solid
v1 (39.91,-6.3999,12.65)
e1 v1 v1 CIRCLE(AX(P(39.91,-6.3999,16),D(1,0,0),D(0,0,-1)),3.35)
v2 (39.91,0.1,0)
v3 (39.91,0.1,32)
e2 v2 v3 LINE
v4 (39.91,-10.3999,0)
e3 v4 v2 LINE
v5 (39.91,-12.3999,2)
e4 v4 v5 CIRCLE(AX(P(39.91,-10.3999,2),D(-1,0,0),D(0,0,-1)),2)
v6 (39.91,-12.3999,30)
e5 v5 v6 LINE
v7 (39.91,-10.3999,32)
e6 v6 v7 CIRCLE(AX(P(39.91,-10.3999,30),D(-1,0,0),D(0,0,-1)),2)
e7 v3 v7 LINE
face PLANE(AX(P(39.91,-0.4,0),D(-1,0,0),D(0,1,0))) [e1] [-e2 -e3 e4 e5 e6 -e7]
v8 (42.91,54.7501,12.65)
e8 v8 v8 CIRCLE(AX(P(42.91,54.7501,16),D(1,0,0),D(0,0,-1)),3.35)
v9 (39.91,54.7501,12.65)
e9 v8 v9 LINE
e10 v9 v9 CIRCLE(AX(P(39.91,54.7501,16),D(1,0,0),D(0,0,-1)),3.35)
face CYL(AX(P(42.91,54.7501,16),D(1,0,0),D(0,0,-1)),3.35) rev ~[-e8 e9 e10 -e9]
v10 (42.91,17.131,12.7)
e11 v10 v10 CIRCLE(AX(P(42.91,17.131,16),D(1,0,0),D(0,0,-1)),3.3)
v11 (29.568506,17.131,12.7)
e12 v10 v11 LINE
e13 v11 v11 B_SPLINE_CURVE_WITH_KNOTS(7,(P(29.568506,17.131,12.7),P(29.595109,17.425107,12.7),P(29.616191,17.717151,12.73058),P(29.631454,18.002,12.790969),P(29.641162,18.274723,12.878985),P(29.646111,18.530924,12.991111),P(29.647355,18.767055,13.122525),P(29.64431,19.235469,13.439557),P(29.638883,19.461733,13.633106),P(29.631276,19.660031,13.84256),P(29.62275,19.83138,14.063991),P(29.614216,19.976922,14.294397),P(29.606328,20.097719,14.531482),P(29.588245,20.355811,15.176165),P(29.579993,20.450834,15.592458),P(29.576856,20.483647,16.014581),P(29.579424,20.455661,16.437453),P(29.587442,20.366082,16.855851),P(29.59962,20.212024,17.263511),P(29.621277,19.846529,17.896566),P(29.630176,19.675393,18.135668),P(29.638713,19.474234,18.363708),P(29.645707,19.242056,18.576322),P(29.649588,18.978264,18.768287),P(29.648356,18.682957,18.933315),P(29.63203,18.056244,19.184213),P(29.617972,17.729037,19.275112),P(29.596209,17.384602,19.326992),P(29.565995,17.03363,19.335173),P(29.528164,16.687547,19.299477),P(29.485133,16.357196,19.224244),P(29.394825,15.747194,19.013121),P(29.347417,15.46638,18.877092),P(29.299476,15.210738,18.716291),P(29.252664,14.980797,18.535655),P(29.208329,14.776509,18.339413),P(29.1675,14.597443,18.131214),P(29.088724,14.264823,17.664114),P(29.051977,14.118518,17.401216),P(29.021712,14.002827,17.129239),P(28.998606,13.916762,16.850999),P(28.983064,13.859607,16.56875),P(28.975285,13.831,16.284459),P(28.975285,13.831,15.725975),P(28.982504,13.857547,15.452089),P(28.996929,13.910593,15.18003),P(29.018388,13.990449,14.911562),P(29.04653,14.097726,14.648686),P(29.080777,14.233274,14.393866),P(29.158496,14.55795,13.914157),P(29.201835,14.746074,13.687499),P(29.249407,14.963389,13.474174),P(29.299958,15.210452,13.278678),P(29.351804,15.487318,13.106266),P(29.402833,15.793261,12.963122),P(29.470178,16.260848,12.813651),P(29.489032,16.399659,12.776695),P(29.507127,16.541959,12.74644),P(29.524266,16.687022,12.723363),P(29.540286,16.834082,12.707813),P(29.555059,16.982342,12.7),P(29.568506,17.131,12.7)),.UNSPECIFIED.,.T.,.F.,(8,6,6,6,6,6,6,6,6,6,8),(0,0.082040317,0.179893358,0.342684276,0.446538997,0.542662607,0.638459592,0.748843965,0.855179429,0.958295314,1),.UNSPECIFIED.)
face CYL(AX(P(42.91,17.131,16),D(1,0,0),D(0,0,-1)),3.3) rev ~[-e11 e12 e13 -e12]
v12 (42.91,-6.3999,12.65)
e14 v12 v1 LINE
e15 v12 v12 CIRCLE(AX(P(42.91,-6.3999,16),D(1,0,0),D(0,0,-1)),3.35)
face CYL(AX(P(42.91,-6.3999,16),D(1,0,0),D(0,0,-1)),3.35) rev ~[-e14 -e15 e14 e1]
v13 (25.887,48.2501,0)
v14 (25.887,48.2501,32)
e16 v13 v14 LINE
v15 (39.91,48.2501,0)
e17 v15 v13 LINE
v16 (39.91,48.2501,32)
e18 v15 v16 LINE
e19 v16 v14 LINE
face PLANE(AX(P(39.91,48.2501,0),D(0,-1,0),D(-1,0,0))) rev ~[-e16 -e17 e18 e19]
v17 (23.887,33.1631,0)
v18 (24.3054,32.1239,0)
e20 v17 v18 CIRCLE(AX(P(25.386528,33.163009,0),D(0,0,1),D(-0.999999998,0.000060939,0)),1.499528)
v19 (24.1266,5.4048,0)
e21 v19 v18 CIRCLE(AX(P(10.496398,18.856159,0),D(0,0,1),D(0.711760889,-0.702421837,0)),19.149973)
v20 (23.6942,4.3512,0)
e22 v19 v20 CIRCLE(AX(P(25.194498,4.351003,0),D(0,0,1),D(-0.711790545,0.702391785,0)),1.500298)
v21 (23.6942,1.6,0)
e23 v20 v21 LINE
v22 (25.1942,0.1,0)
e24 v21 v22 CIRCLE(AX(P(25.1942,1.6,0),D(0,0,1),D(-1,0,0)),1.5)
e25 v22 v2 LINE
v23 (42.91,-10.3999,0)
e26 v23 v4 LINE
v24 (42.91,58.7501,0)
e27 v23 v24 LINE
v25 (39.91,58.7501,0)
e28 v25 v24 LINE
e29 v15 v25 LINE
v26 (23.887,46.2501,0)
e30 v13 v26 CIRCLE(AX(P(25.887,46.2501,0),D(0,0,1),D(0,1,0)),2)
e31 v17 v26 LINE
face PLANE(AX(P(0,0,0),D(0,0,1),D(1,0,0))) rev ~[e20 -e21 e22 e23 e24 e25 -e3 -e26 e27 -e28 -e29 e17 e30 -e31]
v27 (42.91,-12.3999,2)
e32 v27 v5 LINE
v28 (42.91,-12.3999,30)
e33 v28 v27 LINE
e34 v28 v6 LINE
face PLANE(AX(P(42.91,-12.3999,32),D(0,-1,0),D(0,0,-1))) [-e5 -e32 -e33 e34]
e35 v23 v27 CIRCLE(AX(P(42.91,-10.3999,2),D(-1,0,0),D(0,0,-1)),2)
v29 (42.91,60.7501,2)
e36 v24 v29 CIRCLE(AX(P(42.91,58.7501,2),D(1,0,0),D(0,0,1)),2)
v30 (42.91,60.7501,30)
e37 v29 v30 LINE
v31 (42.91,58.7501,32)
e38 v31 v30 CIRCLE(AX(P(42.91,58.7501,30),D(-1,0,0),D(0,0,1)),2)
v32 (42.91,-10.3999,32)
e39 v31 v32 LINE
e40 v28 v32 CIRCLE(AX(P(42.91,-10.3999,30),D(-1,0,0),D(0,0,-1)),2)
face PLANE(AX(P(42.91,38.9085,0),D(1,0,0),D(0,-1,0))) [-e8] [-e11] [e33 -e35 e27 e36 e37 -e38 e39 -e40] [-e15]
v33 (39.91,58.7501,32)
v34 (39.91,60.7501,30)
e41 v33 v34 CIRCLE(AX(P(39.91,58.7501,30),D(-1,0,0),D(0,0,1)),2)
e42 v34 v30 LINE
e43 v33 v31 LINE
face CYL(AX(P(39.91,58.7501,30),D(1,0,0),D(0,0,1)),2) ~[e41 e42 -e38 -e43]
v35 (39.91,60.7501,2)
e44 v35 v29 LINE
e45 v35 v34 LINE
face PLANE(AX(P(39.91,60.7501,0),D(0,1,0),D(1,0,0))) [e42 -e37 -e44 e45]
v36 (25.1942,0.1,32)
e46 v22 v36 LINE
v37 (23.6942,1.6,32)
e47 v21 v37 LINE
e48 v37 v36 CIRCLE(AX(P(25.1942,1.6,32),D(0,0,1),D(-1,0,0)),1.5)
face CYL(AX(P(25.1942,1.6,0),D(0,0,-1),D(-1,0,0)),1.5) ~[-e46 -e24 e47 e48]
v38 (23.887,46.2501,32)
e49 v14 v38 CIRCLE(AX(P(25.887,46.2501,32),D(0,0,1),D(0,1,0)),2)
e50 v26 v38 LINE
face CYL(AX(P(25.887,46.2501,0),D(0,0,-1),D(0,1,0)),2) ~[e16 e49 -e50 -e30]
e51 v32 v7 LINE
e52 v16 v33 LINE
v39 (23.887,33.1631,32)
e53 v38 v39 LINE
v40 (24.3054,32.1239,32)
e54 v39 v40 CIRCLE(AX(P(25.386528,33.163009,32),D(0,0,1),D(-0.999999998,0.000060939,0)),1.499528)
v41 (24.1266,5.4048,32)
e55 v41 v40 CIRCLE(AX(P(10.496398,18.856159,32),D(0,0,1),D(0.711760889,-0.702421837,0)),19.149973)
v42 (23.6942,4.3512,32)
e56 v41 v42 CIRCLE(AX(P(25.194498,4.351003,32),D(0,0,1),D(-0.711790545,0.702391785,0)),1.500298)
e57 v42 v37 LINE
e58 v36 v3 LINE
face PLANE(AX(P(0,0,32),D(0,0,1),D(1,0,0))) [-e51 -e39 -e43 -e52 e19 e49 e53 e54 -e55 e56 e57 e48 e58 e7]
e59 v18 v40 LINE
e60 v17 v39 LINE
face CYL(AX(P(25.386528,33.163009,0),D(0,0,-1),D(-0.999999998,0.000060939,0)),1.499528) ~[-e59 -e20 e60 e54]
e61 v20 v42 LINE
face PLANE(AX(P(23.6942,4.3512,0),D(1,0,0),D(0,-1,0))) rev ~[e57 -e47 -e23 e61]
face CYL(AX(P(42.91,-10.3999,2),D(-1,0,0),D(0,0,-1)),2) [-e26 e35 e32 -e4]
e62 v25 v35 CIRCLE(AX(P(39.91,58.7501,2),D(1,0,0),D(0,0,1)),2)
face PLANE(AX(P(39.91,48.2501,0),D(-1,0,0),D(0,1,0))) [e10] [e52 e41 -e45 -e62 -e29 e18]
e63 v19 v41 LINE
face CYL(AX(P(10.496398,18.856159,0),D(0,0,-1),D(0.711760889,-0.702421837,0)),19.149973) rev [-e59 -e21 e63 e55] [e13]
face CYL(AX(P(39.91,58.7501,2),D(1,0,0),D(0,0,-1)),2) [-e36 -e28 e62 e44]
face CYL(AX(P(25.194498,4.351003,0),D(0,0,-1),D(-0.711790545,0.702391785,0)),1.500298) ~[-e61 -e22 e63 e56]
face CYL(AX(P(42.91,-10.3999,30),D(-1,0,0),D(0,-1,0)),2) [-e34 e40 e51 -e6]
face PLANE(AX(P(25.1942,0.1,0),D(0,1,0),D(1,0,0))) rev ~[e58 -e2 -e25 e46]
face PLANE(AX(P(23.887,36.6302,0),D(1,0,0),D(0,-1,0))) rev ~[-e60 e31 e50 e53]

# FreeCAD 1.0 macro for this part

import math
import FreeCAD as App
import Part
import Sketcher
from FreeCAD import Vector
Q = App.Units.Quantity


def edges_at(feature, points):
    """Names of the edges that pass closest to the given points."""
    edges = feature.Shape.Edges
    near = lambda p: min(range(len(edges)), key=lambda i: edges[i].distToShape(Part.Vertex(*p))[0])
    return sorted({f"Edge{near(p) + 1}" for p in points})

doc = App.newDocument("Part")
params = doc.addObject("Spreadsheet::Sheet", "Params")
for row, (alias, value) in enumerate([
    ("sketch1_radius", "2 mm"),
    ("sketch1_radius2", "1.5 mm"),
    ("sketch1_width", "3 mm"),
    ("sketch1_height", "84 mm"),
    ("sketch1_radius3", "19.15 mm"),
    ("pad1_length", "32 mm"),
    ("sketch2_diameter", "6.7 mm"),
    ("sketch2_diameter2", "6.6 mm"),
    ("sketch2_height", "32 mm"),
    ("sketch2_width", "10.85 mm"),
    ("pocket1_length", "32 mm"),
    ("fillet_radius", "2 mm"),
], start=1):
    params.set(f"A{row}", alias)
    params.set(f"B{row}", "=" + value)
    params.setAlias(f"B{row}", alias)

body = doc.addObject("PartDesign::Body", "Body")

# Sketch on XY plane
sketch1 = body.newObject("Sketcher::SketchObject", "Sketch")
sketch1.AttachmentSupport = (doc.getObject("XY_Plane"), [""])
sketch1.MapMode = "FlatFace"
sketch1.addGeometry([
    Part.LineSegment(Vector(42.9, 60.8, 0), Vector(39.9, 60.8, 0)),  # 0
    Part.LineSegment(Vector(39.9, 60.8, 0), Vector(39.9, 48.3, 0)),  # 1
    Part.LineSegment(Vector(39.9, 48.3, 0), Vector(25.9, 48.3, 0)),  # 2
    Part.ArcOfCircle(Part.Circle(Vector(25.9, 46.3, 0), Vector(0, 0, 1), 2), math.radians(90), math.radians(180)),  # 3
    Part.LineSegment(Vector(23.9, 46.3, 0), Vector(23.9, 33.2, 0)),  # 4
    Part.ArcOfCircle(Part.Circle(Vector(25.4, 33.2, 0), Vector(0, 0, 1), 1.5), math.radians(180), math.radians(224)),  # 5
    Part.ArcOfCircle(Part.Circle(Vector(10.5, 18.9, 0), Vector(0, 0, 1), 19.2), math.radians(-45), math.radians(44)),  # 6
    Part.ArcOfCircle(Part.Circle(Vector(25.2, 4.4, 0), Vector(0, 0, 1), 1.5), math.radians(135), math.radians(180)),  # 7
    Part.LineSegment(Vector(23.7, 4.4, 0), Vector(23.7, 1.6, 0)),  # 8
    Part.ArcOfCircle(Part.Circle(Vector(25.2, 1.6, 0), Vector(0, 0, 1), 1.5), math.radians(180), math.radians(270)),  # 9
    Part.LineSegment(Vector(25.2, 0.1, 0), Vector(39.9, 0.1, 0)),  # 10
    Part.LineSegment(Vector(39.9, 0.1, 0), Vector(39.9, -23.2, 0)),  # 11
    Part.LineSegment(Vector(39.9, -23.2, 0), Vector(42.9, -23.2, 0)),  # 12
    Part.LineSegment(Vector(42.9, -23.2, 0), Vector(42.9, 60.8, 0)),  # 13
], False)
sketch1.addConstraint([
    Sketcher.Constraint("Coincident", 0, 2, 1, 1),
    Sketcher.Constraint("Coincident", 1, 2, 2, 1),
    Sketcher.Constraint("Tangent", 2, 2, 3, 1),
    Sketcher.Constraint("Tangent", 3, 2, 4, 1),
    Sketcher.Constraint("Tangent", 4, 2, 5, 1),
    Sketcher.Constraint("Tangent", 5, 2, 6, 2),
    Sketcher.Constraint("Tangent", 6, 1, 7, 1),
    Sketcher.Constraint("Tangent", 7, 2, 8, 1),
    Sketcher.Constraint("Tangent", 8, 2, 9, 1),
    Sketcher.Constraint("Tangent", 9, 2, 10, 1),
    Sketcher.Constraint("Coincident", 10, 2, 11, 1),
    Sketcher.Constraint("Coincident", 11, 2, 12, 1),
    Sketcher.Constraint("Coincident", 12, 2, 13, 1),
    Sketcher.Constraint("Coincident", 13, 2, 0, 1),
    Sketcher.Constraint("Horizontal", 0),
    Sketcher.Constraint("Vertical", 1),
    Sketcher.Constraint("Horizontal", 2),
    Sketcher.Constraint("Vertical", 4),
    Sketcher.Constraint("Vertical", 8),
    Sketcher.Constraint("Horizontal", 10),
    Sketcher.Constraint("Vertical", 11),
    Sketcher.Constraint("Horizontal", 12),
    Sketcher.Constraint("Vertical", 13),
    Sketcher.Constraint("Equal", 5, 7),
    Sketcher.Constraint("Equal", 7, 9),
    Sketcher.Constraint("Vertical", 1, 2, 10, 2),
    Sketcher.Constraint("Radius", 3, Q("2 mm")),
    Sketcher.Constraint("Radius", 5, Q("1.5 mm")),
    Sketcher.Constraint("DistanceX", 0, 2, 0, 1, Q("3 mm")),
    Sketcher.Constraint("DistanceY", 13, 1, 13, 2, Q("84 mm")),
    Sketcher.Constraint("Radius", 6, Q("19.15 mm")),
    Sketcher.Constraint("DistanceY", 1, 2, 1, 1, Q("12.5 mm")),
    Sketcher.Constraint("DistanceY", 11, 2, 11, 1, Q("23.35 mm")),
    Sketcher.Constraint("DistanceY", -1, 1, 9, 3, Q("1.6 mm")),
    Sketcher.Constraint("DistanceX", 2, 2, 2, 1, Q("14.023 mm")),
    Sketcher.Constraint("DistanceY", 4, 2, 4, 1, Q("13.087 mm")),
    Sketcher.Constraint("DistanceX", -1, 1, 0, 2, Q("39.91 mm")),
    Sketcher.Constraint("DistanceX", 10, 1, 10, 2, Q("14.7158 mm")),
    Sketcher.Constraint("DistanceY", 8, 2, 8, 1, Q("2.7512 mm")),
])
sketch1.setExpression("Constraints[26]", "Params.sketch1_radius")
sketch1.setExpression("Constraints[27]", "Params.sketch1_radius2")
sketch1.setExpression("Constraints[28]", "Params.sketch1_width")
sketch1.setExpression("Constraints[29]", "Params.sketch1_height")
sketch1.setExpression("Constraints[30]", "Params.sketch1_radius3")
pad1 = body.newObject("PartDesign::Pad", "Pad")
pad1.Profile = sketch1
pad1.setExpression("Length", "Params.pad1_length")

# Sketch on YZ plane
sketch2 = body.newObject("Sketcher::SketchObject", "Sketch001")
sketch2.AttachmentSupport = (doc.getObject("YZ_Plane"), [""])
sketch2.MapMode = "FlatFace"
sketch2.AttachmentOffset = App.Placement(Vector(0, 0, 42.91), App.Rotation())
sketch2.addGeometry([
    Part.Circle(Vector(54.8, 16, 0), Vector(0, 0, 1), 3.4),  # 0
    Part.Circle(Vector(-6.4, 16, 0), Vector(0, 0, 1), 3.4),  # 1
    Part.LineSegment(Vector(-23.2, 32, 0), Vector(-23.2, 0, 0)),  # 2
    Part.LineSegment(Vector(-23.2, 0, 0), Vector(-12.4, 0, 0)),  # 3
    Part.LineSegment(Vector(-12.4, 0, 0), Vector(-12.4, 32, 0)),  # 4
    Part.LineSegment(Vector(-12.4, 32, 0), Vector(-23.2, 32, 0)),  # 5
    Part.Circle(Vector(17.1, 16, 0), Vector(0, 0, 1), 3.3),  # 6
], False)
sketch2.addConstraint([
    Sketcher.Constraint("Coincident", 2, 2, 3, 1),
    Sketcher.Constraint("Coincident", 3, 2, 4, 1),
    Sketcher.Constraint("Coincident", 4, 2, 5, 1),
    Sketcher.Constraint("Coincident", 5, 2, 2, 1),
    Sketcher.Constraint("Vertical", 2),
    Sketcher.Constraint("Horizontal", 3),
    Sketcher.Constraint("Vertical", 4),
    Sketcher.Constraint("Horizontal", 5),
    Sketcher.Constraint("Equal", 0, 1),
    Sketcher.Constraint("PointOnObject", 2, 2, -1),
    Sketcher.Constraint("Horizontal", 0, 3, 1, 3),
    Sketcher.Constraint("Horizontal", 1, 3, 6, 3),
    Sketcher.Constraint("Diameter", 0, Q("6.7 mm")),
    Sketcher.Constraint("Diameter", 6, Q("6.6 mm")),
    Sketcher.Constraint("DistanceY", 2, 2, 2, 1, Q("32 mm")),
    Sketcher.Constraint("DistanceX", 3, 2, 1, 3, Q("6 mm")),
    Sketcher.Constraint("DistanceY", -1, 1, 0, 3, Q("16 mm")),
    Sketcher.Constraint("DistanceX", 2, 2, 0, 3, Q("78 mm")),
    Sketcher.Constraint("DistanceX", 3, 1, 3, 2, Q("10.85 mm")),
    Sketcher.Constraint("DistanceX", 1, 3, -1, 1, Q("6.4 mm")),
    Sketcher.Constraint("DistanceX", -1, 1, 6, 3, Q("17.131 mm")),
])
sketch2.setExpression("Constraints[12]", "Params.sketch2_diameter")
sketch2.setExpression("Constraints[13]", "Params.sketch2_diameter2")
sketch2.setExpression("Constraints[14]", "Params.sketch2_height")
sketch2.setExpression("Constraints[18]", "Params.sketch2_width")
pocket1 = body.newObject("PartDesign::Pocket", "Pocket")
pocket1.Profile = sketch2
pocket1.setExpression("Length", "Params.pocket1_length")
doc.recompute()

fillet = body.newObject("PartDesign::Fillet", "Fillet")
fillet.Base = (pocket1, edges_at(pocket1, [
    (41.41, 60.75, 32),
    (41.41, 60.75, 0),
    (41.41, -12.4, 0),
    (41.41, -12.4, 32),
]))
fillet.setExpression("Radius", "Params.fillet_radius")

doc.recompute()
